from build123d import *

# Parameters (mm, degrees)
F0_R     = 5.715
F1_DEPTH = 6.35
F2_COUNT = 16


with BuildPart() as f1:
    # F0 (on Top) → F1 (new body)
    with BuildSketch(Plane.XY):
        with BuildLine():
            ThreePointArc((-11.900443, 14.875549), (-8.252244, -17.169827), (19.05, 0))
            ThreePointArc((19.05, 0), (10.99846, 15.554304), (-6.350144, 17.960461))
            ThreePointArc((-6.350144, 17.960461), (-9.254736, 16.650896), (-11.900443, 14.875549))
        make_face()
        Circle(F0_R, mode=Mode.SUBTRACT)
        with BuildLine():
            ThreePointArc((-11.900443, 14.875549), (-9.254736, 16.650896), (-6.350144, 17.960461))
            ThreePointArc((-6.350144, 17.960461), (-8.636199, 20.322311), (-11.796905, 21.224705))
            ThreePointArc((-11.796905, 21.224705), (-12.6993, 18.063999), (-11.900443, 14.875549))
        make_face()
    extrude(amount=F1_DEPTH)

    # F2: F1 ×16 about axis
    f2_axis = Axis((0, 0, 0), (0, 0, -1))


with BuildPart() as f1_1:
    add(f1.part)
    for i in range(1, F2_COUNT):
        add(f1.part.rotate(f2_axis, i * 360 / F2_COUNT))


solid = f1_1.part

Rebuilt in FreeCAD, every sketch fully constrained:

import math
import FreeCAD as App
import Part
import Sketcher
Q = App.Units.Quantity

doc = App.newDocument("Part")
body = doc.addObject("PartDesign::Body", "Body")

# Sketch on XY plane
sketch1 = body.newObject("Sketcher::SketchObject", "Sketch")
sketch1.AttachmentSupport = (doc.getObject("XY_Plane"), [""])
sketch1.MapMode = "FlatFace"
sketch1.addGeometry([
    Part.ArcOfCircle(Part.Circle(App.Vector(0, 0, 0), App.Vector(0, 0, 1), 19), math.radians(129), math.radians(360)),  # 0
    Part.ArcOfCircle(Part.Circle(App.Vector(0, 0, 0), App.Vector(0, 0, 1), 19), math.radians(0), math.radians(109)),  # 1
    Part.ArcOfCircle(Part.Circle(App.Vector(-12, 15, 0), App.Vector(0, 0, 1), 6), math.radians(29), math.radians(89)),  # 2
    Part.ArcOfCircle(Part.Circle(App.Vector(-6, 18, 0), App.Vector(0, 0, 1), 6), math.radians(149), math.radians(209)),  # 3
    Part.Circle(App.Vector(0, 0, 0), App.Vector(0, 0, 1), 6),  # 4
], False)
sketch1.addConstraint([
    Sketcher.Constraint("Tangent", 0, 2, 1, 1),
    Sketcher.Constraint("Coincident", 1, 2, 2, 1),
    Sketcher.Constraint("Coincident", 2, 2, 3, 1),
    Sketcher.Constraint("Coincident", 3, 2, 0, 1),
    Sketcher.Constraint("Coincident", 0, 3, -1, 1),
    Sketcher.Constraint("Coincident", 4, 3, -1, 1),
    Sketcher.Constraint("Coincident", 1, 2, 3, 3),
    Sketcher.Constraint("Coincident", 3, 2, 2, 3),
    Sketcher.Constraint("Equal", 0, 1),
    Sketcher.Constraint("PointOnObject", 0, 2, -1),
    Sketcher.Constraint("Diameter", 4, Q("0.45 in")),
    Sketcher.Constraint("Radius", 0, Q("0.75 in")),
    Sketcher.Constraint("Radius", 2, Q("0.2499999 in")),
    Sketcher.Constraint("DistanceX", 3, 2, 1, 2, Q("5.550299 mm")),
])
pad1 = body.newObject("PartDesign::Pad", "Pad")
pad1.Profile = sketch1
pad1.Length = Q("0.25 in")
body2 = doc.addObject("PartDesign::Body", "Body001")
doc.recompute()

body2.BaseFeature = body
doc.recompute()

body3 = doc.addObject("PartDesign::Body", "Body002")
body3.BaseFeature = body
body3.Placement = App.Placement(App.Vector(0, 0, 0), App.Rotation(App.Vector(0, 0, -1), 22.5))
boolean = body2.newObject("PartDesign::Boolean", "Boolean")
boolean.Type = "Fuse"
boolean.addObjects([body3])
doc.recompute()

body4 = doc.addObject("PartDesign::Body", "Body003")
body4.BaseFeature = body
body4.Placement = App.Placement(App.Vector(0, 0, 0), App.Rotation(App.Vector(0, 0, -1), 45))
boolean2 = body2.newObject("PartDesign::Boolean", "Boolean001")
boolean2.Type = "Fuse"
boolean2.addObjects([body4])
doc.recompute()

body5 = doc.addObject("PartDesign::Body", "Body004")
body5.BaseFeature = body
body5.Placement = App.Placement(App.Vector(0, 0, 0), App.Rotation(App.Vector(0, 0, -1), 67.5))
boolean3 = body2.newObject("PartDesign::Boolean", "Boolean002")
boolean3.Type = "Fuse"
boolean3.addObjects([body5])
doc.recompute()

body6 = doc.addObject("PartDesign::Body", "Body005")
body6.BaseFeature = body
body6.Placement = App.Placement(App.Vector(0, 0, 0), App.Rotation(App.Vector(0, 0, -1), 90))
boolean4 = body2.newObject("PartDesign::Boolean", "Boolean003")
boolean4.Type = "Fuse"
boolean4.addObjects([body6])
doc.recompute()

body7 = doc.addObject("PartDesign::Body", "Body006")
body7.BaseFeature = body
body7.Placement = App.Placement(App.Vector(0, 0, 0), App.Rotation(App.Vector(0, 0, -1), 112.5))
boolean5 = body2.newObject("PartDesign::Boolean", "Boolean004")
boolean5.Type = "Fuse"
boolean5.addObjects([body7])
doc.recompute()

body8 = doc.addObject("PartDesign::Body", "Body007")
body8.BaseFeature = body
body8.Placement = App.Placement(App.Vector(0, 0, 0), App.Rotation(App.Vector(0, 0, -1), 135))
boolean6 = body2.newObject("PartDesign::Boolean", "Boolean005")
boolean6.Type = "Fuse"
boolean6.addObjects([body8])
doc.recompute()

body9 = doc.addObject("PartDesign::Body", "Body008")
body9.BaseFeature = body
body9.Placement = App.Placement(App.Vector(0, 0, 0), App.Rotation(App.Vector(0, 0, -1), 157.5))
boolean7 = body2.newObject("PartDesign::Boolean", "Boolean006")
boolean7.Type = "Fuse"
boolean7.addObjects([body9])
doc.recompute()

body10 = doc.addObject("PartDesign::Body", "Body009")
body10.BaseFeature = body
body10.Placement = App.Placement(App.Vector(0, 0, 0), App.Rotation(App.Vector(0, 0, -1), 180))
boolean8 = body2.newObject("PartDesign::Boolean", "Boolean007")
boolean8.Type = "Fuse"
boolean8.addObjects([body10])
doc.recompute()

body11 = doc.addObject("PartDesign::Body", "Body010")
body11.BaseFeature = body
body11.Placement = App.Placement(App.Vector(0, 0, 0), App.Rotation(App.Vector(0, 0, -1), 202.5))
boolean9 = body2.newObject("PartDesign::Boolean", "Boolean008")
boolean9.Type = "Fuse"
boolean9.addObjects([body11])
doc.recompute()

body12 = doc.addObject("PartDesign::Body", "Body011")
body12.BaseFeature = body
body12.Placement = App.Placement(App.Vector(0, 0, 0), App.Rotation(App.Vector(0, 0, -1), 225))
boolean10 = body2.newObject("PartDesign::Boolean", "Boolean009")
boolean10.Type = "Fuse"
boolean10.addObjects([body12])
doc.recompute()

body13 = doc.addObject("PartDesign::Body", "Body012")
body13.BaseFeature = body
body13.Placement = App.Placement(App.Vector(0, 0, 0), App.Rotation(App.Vector(0, 0, -1), 247.5))
boolean11 = body2.newObject("PartDesign::Boolean", "Boolean010")
boolean11.Type = "Fuse"
boolean11.addObjects([body13])
doc.recompute()

body14 = doc.addObject("PartDesign::Body", "Body013")
body14.BaseFeature = body
body14.Placement = App.Placement(App.Vector(0, 0, 0), App.Rotation(App.Vector(0, 0, -1), 270))
boolean12 = body2.newObject("PartDesign::Boolean", "Boolean011")
boolean12.Type = "Fuse"
boolean12.addObjects([body14])
doc.recompute()

body15 = doc.addObject("PartDesign::Body", "Body014")
body15.BaseFeature = body
body15.Placement = App.Placement(App.Vector(0, 0, 0), App.Rotation(App.Vector(0, 0, -1), 292.5))
boolean13 = body2.newObject("PartDesign::Boolean", "Boolean012")
boolean13.Type = "Fuse"
boolean13.addObjects([body15])
doc.recompute()

body16 = doc.addObject("PartDesign::Body", "Body015")
body16.BaseFeature = body
body16.Placement = App.Placement(App.Vector(0, 0, 0), App.Rotation(App.Vector(0, 0, -1), 315))
boolean14 = body2.newObject("PartDesign::Boolean", "Boolean013")
boolean14.Type = "Fuse"
boolean14.addObjects([body16])
doc.recompute()

body.Placement = App.Placement(App.Vector(0, 0, 0), App.Rotation(App.Vector(0, 0, -1), 337.5))
boolean15 = body2.newObject("PartDesign::Boolean", "Boolean014")
boolean15.Type = "Fuse"
boolean15.addObjects([body])

doc.recompute()
